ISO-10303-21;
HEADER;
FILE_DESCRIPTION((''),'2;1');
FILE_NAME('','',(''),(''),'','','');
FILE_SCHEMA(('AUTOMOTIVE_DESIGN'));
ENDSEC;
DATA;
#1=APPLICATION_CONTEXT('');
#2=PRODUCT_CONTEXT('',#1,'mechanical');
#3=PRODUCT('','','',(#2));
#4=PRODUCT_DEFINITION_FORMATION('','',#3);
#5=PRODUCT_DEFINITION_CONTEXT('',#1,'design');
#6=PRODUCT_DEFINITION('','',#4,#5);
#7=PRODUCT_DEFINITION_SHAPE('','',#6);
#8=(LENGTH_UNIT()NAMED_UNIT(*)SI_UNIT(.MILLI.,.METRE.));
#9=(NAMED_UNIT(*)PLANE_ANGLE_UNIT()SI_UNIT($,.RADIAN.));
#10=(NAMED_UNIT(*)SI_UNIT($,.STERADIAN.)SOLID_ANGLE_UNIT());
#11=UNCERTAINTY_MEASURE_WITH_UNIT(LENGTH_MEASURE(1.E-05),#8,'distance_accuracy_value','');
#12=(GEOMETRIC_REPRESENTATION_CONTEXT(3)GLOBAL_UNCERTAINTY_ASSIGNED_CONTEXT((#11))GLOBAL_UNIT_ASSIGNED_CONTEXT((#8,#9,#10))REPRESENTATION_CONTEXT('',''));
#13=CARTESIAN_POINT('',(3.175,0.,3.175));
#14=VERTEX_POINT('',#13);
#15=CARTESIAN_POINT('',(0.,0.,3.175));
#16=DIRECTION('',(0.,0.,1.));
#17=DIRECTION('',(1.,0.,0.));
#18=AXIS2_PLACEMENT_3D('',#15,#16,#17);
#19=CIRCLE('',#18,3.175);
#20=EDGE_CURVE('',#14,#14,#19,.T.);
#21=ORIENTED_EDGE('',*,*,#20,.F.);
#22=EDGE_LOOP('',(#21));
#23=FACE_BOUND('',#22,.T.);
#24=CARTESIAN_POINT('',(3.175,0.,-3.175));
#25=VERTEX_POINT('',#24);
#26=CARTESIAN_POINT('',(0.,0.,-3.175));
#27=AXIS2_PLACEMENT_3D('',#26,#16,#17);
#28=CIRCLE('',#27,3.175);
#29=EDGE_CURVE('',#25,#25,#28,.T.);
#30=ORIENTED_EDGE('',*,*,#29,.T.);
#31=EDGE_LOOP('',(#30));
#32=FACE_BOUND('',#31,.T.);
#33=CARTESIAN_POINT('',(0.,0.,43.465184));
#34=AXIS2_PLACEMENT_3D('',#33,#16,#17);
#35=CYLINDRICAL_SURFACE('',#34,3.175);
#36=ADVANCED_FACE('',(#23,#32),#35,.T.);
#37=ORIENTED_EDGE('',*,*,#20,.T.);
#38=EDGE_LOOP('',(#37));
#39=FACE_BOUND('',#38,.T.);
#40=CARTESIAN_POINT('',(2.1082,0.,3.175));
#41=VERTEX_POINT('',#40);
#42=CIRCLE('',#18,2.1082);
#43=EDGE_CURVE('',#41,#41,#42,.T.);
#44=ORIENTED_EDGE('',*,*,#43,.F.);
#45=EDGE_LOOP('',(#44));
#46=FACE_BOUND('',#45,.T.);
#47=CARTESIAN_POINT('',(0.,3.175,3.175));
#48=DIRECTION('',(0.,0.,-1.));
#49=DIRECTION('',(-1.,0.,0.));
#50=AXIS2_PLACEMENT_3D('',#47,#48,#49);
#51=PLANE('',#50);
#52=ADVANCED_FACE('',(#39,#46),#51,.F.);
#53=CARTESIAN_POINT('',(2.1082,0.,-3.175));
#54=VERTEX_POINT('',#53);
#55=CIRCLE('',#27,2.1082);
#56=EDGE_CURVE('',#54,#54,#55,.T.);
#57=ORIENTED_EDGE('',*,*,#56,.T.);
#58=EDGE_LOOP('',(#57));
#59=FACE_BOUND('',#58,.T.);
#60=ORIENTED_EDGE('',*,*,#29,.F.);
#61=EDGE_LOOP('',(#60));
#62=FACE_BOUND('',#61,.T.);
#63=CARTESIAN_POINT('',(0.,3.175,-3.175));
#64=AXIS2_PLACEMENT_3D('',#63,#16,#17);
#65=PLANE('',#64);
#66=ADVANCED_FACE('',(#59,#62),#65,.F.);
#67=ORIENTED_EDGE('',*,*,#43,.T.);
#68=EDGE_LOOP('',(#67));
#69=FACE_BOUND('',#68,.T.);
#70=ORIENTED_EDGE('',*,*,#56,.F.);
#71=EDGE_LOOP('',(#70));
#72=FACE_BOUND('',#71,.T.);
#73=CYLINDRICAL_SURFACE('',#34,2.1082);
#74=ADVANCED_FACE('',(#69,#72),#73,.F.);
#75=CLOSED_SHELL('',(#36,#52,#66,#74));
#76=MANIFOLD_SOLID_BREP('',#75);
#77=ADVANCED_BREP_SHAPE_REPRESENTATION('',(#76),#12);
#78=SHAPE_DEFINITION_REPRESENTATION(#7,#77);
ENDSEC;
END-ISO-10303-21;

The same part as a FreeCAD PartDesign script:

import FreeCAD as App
import Part
import Sketcher

V = App.Vector
Q = App.Units.Quantity


def add_polygon(sketch, points):
    """Adds a closed chain of lines whose ends are joined by coincident constraints."""
    first, n = sketch.GeometryCount, len(points)
    for a, b in zip(points, points[1:] + points[:1]):
        sketch.addGeometry(Part.LineSegment(App.Vector(*a, 0), App.Vector(*b, 0)), False)
    for i in range(n):
        sketch.addConstraint(Sketcher.Constraint("Coincident", first + i, 2, first + (i + 1) % n, 1))

doc = App.newDocument("Part")
body = doc.addObject("PartDesign::Body", "Body")

sketch1 = body.newObject("Sketcher::SketchObject", "Sketch")
sketch1.AttachmentSupport = (doc.getObject("YZ_Plane"), [""])
sketch1.MapMode = "FlatFace"
add_polygon(sketch1, [(3.175, 3.175), (2.1082, 3.175), (2.1082, -3.175), (3.175, -3.175)])
sketch1.addConstraint([
    Sketcher.Constraint("Horizontal", 0),
    Sketcher.Constraint("Vertical", 1),
    Sketcher.Constraint("Horizontal", 2),
    Sketcher.Constraint("Vertical", 3),
    Sketcher.Constraint("DistanceY", 1, 2, 1, 1, Q("0.25 in")),
    Sketcher.Constraint("DistanceX", 0, 2, 0, 1, Q("0.042 in")),
    Sketcher.Constraint("DistanceX", -1, 1, 0, 2, Q("0.083 in")),
    Sketcher.Constraint("DistanceY", -1, 1, 0, 2, Q("0.125 in")),
])
revolution = body.newObject("PartDesign::Revolution", "Revolution")
revolution.Profile = sketch1
revolution.ReferenceAxis = (sketch1, ["V_Axis"])
revolution.Angle = 360

doc.recompute()
